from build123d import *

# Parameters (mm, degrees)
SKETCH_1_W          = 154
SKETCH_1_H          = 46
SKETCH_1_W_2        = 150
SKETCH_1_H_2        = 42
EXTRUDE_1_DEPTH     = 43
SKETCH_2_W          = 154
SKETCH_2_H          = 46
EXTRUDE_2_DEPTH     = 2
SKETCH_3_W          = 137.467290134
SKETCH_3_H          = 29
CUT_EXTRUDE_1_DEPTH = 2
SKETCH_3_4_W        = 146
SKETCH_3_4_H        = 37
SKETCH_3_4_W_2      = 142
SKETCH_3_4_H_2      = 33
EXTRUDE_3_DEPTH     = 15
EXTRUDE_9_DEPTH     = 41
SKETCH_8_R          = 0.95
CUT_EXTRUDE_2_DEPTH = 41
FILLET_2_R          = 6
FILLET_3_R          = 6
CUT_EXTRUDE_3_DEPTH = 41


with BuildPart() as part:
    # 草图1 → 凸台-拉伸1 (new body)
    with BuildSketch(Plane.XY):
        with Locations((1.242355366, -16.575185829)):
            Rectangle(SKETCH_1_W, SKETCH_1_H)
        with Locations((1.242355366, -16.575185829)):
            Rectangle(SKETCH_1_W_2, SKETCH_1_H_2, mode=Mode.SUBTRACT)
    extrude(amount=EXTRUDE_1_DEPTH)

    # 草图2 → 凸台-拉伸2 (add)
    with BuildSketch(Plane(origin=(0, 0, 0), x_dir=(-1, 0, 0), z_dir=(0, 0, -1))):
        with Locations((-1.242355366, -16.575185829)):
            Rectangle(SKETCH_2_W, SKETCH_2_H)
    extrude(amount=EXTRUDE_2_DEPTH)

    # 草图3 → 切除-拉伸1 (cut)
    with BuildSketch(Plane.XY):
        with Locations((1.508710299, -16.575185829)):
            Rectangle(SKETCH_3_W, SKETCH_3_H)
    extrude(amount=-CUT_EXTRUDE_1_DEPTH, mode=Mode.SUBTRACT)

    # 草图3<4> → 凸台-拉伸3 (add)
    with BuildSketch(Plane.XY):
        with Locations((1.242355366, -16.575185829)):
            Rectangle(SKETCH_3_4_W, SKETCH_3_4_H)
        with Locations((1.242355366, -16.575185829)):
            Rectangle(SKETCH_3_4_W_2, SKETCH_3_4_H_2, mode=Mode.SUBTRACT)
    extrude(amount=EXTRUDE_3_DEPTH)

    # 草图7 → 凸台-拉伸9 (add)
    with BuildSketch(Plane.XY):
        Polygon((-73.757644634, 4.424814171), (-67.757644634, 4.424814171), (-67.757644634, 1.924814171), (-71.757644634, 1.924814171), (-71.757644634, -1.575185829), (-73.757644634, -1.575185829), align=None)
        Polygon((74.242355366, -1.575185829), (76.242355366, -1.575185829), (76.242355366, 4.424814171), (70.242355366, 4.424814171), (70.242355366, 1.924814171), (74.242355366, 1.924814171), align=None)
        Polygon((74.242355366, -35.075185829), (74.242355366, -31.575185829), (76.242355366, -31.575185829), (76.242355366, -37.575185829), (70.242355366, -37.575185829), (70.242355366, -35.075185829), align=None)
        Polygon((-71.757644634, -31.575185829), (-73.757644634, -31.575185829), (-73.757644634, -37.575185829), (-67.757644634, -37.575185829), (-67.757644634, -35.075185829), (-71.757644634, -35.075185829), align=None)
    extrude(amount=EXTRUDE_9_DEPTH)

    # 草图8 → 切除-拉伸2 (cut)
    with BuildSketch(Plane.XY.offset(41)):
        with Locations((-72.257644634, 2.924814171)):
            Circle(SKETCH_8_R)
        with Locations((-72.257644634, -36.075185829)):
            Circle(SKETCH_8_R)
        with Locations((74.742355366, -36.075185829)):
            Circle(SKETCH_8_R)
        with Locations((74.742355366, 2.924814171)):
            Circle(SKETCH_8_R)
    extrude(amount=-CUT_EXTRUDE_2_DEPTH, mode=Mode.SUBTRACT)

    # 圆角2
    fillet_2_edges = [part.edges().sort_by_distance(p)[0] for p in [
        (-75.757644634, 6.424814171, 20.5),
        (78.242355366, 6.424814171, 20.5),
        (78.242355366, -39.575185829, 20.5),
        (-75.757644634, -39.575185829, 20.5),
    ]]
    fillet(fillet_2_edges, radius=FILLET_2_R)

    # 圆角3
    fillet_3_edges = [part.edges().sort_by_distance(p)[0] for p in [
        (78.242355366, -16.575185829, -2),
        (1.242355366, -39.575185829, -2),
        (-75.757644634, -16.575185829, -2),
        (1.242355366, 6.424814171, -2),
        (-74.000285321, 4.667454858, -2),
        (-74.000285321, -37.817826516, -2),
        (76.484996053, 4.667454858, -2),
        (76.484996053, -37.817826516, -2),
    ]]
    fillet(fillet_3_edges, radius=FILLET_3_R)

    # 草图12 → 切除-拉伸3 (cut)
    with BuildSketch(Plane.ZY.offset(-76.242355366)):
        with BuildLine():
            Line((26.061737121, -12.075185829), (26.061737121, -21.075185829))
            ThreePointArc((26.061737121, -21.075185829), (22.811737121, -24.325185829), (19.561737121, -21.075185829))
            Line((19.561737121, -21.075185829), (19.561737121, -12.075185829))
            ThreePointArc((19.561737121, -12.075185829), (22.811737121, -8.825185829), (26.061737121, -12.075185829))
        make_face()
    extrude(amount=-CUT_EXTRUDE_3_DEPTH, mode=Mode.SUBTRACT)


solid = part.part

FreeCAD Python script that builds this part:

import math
import FreeCAD as App
import Part
import Sketcher


def edges_at(feature, points):
    """Names of the edges that pass closest to the given points."""
    edges = feature.Shape.Edges
    near = lambda p: min(range(len(edges)), key=lambda i: edges[i].distToShape(Part.Vertex(*p))[0])
    return sorted({f"Edge{near(p) + 1}" for p in points})

doc = App.newDocument("Part")
params = doc.addObject("Spreadsheet::Sheet", "Params")
for row, (alias, value) in enumerate([
    ("sketch1_width", "154 mm"),
    ("sketch1_width2", "150 mm"),
    ("sketch1_height", "46 mm"),
    ("sketch1_height2", "42 mm"),
    ("pad1_length", "43 mm"),
    ("sketch2_width", "154 mm"),
    ("sketch2_height", "46 mm"),
    ("pad2_length", "2 mm"),
    ("sketch3_height", "29 mm"),
    ("pocket1_length", "2 mm"),
    ("sketch4_width", "146 mm"),
    ("sketch4_width2", "142 mm"),
    ("sketch4_height", "37 mm"),
    ("sketch4_height2", "33 mm"),
    ("pad3_length", "15 mm"),
    ("sketch5_width", "6 mm"),
    ("sketch5_width2", "2 mm"),
    ("sketch5_height", "3.5 mm"),
    ("pad4_length", "41 mm"),
    ("sketch6_diameter", "1.9 mm"),
    ("pocket2_length", "41 mm"),
    ("fillet_radius", "6 mm"),
    ("fillet2_radius", "6 mm"),
    ("sketch7_width", "9 mm"),
    ("sketch7_radius", "3.25 mm"),
    ("pocket3_length", "41 mm"),
], start=1):
    params.set(f"A{row}", alias)
    params.set(f"B{row}", "=" + value)
    params.setAlias(f"B{row}", alias)

body = doc.addObject("PartDesign::Body", "Body")

# Sketch on XY plane
sketch1 = body.newObject("Sketcher::SketchObject", "Sketch")
sketch1.AttachmentSupport = (doc.getObject("XY_Plane"), [""])
sketch1.MapMode = "FlatFace"
sketch1.addGeometry(Part.LineSegment(App.Vector(-76, 6, 0), App.Vector(-76, -40, 0)), False)
sketch1.addGeometry(Part.LineSegment(App.Vector(-76, -40, 0), App.Vector(78, -40, 0)), False)
sketch1.addGeometry(Part.LineSegment(App.Vector(78, -40, 0), App.Vector(78, 6, 0)), False)
sketch1.addGeometry(Part.LineSegment(App.Vector(78, 6, 0), App.Vector(-76, 6, 0)), False)
sketch1.addGeometry(Part.LineSegment(App.Vector(76, -38, 0), App.Vector(-74, -38, 0)), False)
sketch1.addGeometry(Part.LineSegment(App.Vector(-74, -38, 0), App.Vector(-74, 4, 0)), False)
sketch1.addGeometry(Part.LineSegment(App.Vector(-74, 4, 0), App.Vector(76, 4, 0)), False)
sketch1.addGeometry(Part.LineSegment(App.Vector(76, 4, 0), App.Vector(76, -38, 0)), False)
sketch1.addConstraint(Sketcher.Constraint("Coincident", 0, 2, 1, 1))
sketch1.addConstraint(Sketcher.Constraint("Coincident", 1, 2, 2, 1))
sketch1.addConstraint(Sketcher.Constraint("Coincident", 2, 2, 3, 1))
sketch1.addConstraint(Sketcher.Constraint("Coincident", 3, 2, 0, 1))
sketch1.addConstraint(Sketcher.Constraint("Coincident", 4, 2, 5, 1))
sketch1.addConstraint(Sketcher.Constraint("Coincident", 5, 2, 6, 1))
sketch1.addConstraint(Sketcher.Constraint("Coincident", 6, 2, 7, 1))
sketch1.addConstraint(Sketcher.Constraint("Coincident", 7, 2, 4, 1))
sketch1.addConstraint(Sketcher.Constraint("Vertical", 0))
sketch1.addConstraint(Sketcher.Constraint("Horizontal", 1))
sketch1.addConstraint(Sketcher.Constraint("Vertical", 2))
sketch1.addConstraint(Sketcher.Constraint("Horizontal", 3))
sketch1.addConstraint(Sketcher.Constraint("Horizontal", 4))
sketch1.addConstraint(Sketcher.Constraint("Vertical", 5))
sketch1.addConstraint(Sketcher.Constraint("Horizontal", 6))
sketch1.addConstraint(Sketcher.Constraint("Vertical", 7))
sketch1.addConstraint(Sketcher.Constraint("DistanceX", 1, 1, 1, 2, 154.0))
sketch1.addConstraint(Sketcher.Constraint("DistanceX", 4, 2, 4, 1, 150.0))
sketch1.addConstraint(Sketcher.Constraint("DistanceY", 0, 2, 0, 1, 46.0))
sketch1.addConstraint(Sketcher.Constraint("DistanceY", 5, 1, 5, 2, 42.0))
sketch1.addConstraint(Sketcher.Constraint("DistanceX", 0, 2, 4, 2, 2.0))
sketch1.addConstraint(Sketcher.Constraint("DistanceY", 0, 2, 4, 2, 2.0))
sketch1.addConstraint(Sketcher.Constraint("DistanceX", 0, 2, -1, 1, 75.757645))
sketch1.addConstraint(Sketcher.Constraint("DistanceY", 0, 2, -1, 1, 39.575186))
sketch1.setExpression("Constraints[16]", "Params.sketch1_width")
sketch1.setExpression("Constraints[17]", "Params.sketch1_width2")
sketch1.setExpression("Constraints[18]", "Params.sketch1_height")
sketch1.setExpression("Constraints[19]", "Params.sketch1_height2")
pad1 = body.newObject("PartDesign::Pad", "Pad")
pad1.Profile = sketch1
pad1.setExpression("Length", "Params.pad1_length")

# Sketch on XY plane
sketch2 = body.newObject("Sketcher::SketchObject", "Sketch001")
sketch2.AttachmentSupport = (doc.getObject("XY_Plane"), [""])
sketch2.MapMode = "FlatFace"
sketch2.addGeometry(Part.LineSegment(App.Vector(78, 6, 0), App.Vector(78, -40, 0)), False)
sketch2.addGeometry(Part.LineSegment(App.Vector(78, -40, 0), App.Vector(-76, -40, 0)), False)
sketch2.addGeometry(Part.LineSegment(App.Vector(-76, -40, 0), App.Vector(-76, 6, 0)), False)
sketch2.addGeometry(Part.LineSegment(App.Vector(-76, 6, 0), App.Vector(78, 6, 0)), False)
sketch2.addConstraint(Sketcher.Constraint("Coincident", 0, 2, 1, 1))
sketch2.addConstraint(Sketcher.Constraint("Coincident", 1, 2, 2, 1))
sketch2.addConstraint(Sketcher.Constraint("Coincident", 2, 2, 3, 1))
sketch2.addConstraint(Sketcher.Constraint("Coincident", 3, 2, 0, 1))
sketch2.addConstraint(Sketcher.Constraint("Vertical", 0))
sketch2.addConstraint(Sketcher.Constraint("Horizontal", 1))
sketch2.addConstraint(Sketcher.Constraint("Vertical", 2))
sketch2.addConstraint(Sketcher.Constraint("Horizontal", 3))
sketch2.addConstraint(Sketcher.Constraint("DistanceX", 1, 2, 1, 1, 154.0))
sketch2.addConstraint(Sketcher.Constraint("DistanceY", 0, 2, 0, 1, 46.0))
sketch2.addConstraint(Sketcher.Constraint("DistanceX", -1, 1, 0, 2, 78.242355))
sketch2.addConstraint(Sketcher.Constraint("DistanceY", 0, 2, -1, 1, 39.575186))
sketch2.setExpression("Constraints[8]", "Params.sketch2_width")
sketch2.setExpression("Constraints[9]", "Params.sketch2_height")
pad2 = body.newObject("PartDesign::Pad", "Pad001")
pad2.Profile = sketch2
pad2.setExpression("Length", "Params.pad2_length")
pad2.Reversed = True

# Sketch on XY plane
sketch3 = body.newObject("Sketcher::SketchObject", "Sketch002")
sketch3.AttachmentSupport = (doc.getObject("XY_Plane"), [""])
sketch3.MapMode = "FlatFace"
sketch3.addGeometry(Part.LineSegment(App.Vector(-67, -2, 0), App.Vector(-67, -31, 0)), False)
sketch3.addGeometry(Part.LineSegment(App.Vector(-67, -31, 0), App.Vector(70, -31, 0)), False)
sketch3.addGeometry(Part.LineSegment(App.Vector(70, -31, 0), App.Vector(70, -2, 0)), False)
sketch3.addGeometry(Part.LineSegment(App.Vector(70, -2, 0), App.Vector(-67, -2, 0)), False)
sketch3.addConstraint(Sketcher.Constraint("Coincident", 0, 2, 1, 1))
sketch3.addConstraint(Sketcher.Constraint("Coincident", 1, 2, 2, 1))
sketch3.addConstraint(Sketcher.Constraint("Coincident", 2, 2, 3, 1))
sketch3.addConstraint(Sketcher.Constraint("Coincident", 3, 2, 0, 1))
sketch3.addConstraint(Sketcher.Constraint("Vertical", 0))
sketch3.addConstraint(Sketcher.Constraint("Horizontal", 1))
sketch3.addConstraint(Sketcher.Constraint("Vertical", 2))
sketch3.addConstraint(Sketcher.Constraint("Horizontal", 3))
sketch3.addConstraint(Sketcher.Constraint("DistanceY", 0, 2, 0, 1, 29.0))
sketch3.addConstraint(Sketcher.Constraint("DistanceX", 1, 1, 1, 2, 137.46729))
sketch3.addConstraint(Sketcher.Constraint("DistanceX", 0, 2, -1, 1, 67.224935))
sketch3.addConstraint(Sketcher.Constraint("DistanceY", 0, 2, -1, 1, 31.075186))
sketch3.setExpression("Constraints[8]", "Params.sketch3_height")
pocket1 = body.newObject("PartDesign::Pocket", "Pocket")
pocket1.Profile = sketch3
pocket1.setExpression("Length", "Params.pocket1_length")

# Sketch on XY plane
sketch4 = body.newObject("Sketcher::SketchObject", "Sketch003")
sketch4.AttachmentSupport = (doc.getObject("XY_Plane"), [""])
sketch4.MapMode = "FlatFace"
sketch4.addGeometry(Part.LineSegment(App.Vector(-72, 2, 0), App.Vector(-72, -35, 0)), False)
sketch4.addGeometry(Part.LineSegment(App.Vector(-72, -35, 0), App.Vector(74, -35, 0)), False)
sketch4.addGeometry(Part.LineSegment(App.Vector(74, -35, 0), App.Vector(74, 2, 0)), False)
sketch4.addGeometry(Part.LineSegment(App.Vector(74, 2, 0), App.Vector(-72, 2, 0)), False)
sketch4.addGeometry(Part.LineSegment(App.Vector(72, -33, 0), App.Vector(-70, -33, 0)), False)
sketch4.addGeometry(Part.LineSegment(App.Vector(-70, -33, 0), App.Vector(-70, 0, 0)), False)
sketch4.addGeometry(Part.LineSegment(App.Vector(-70, 0, 0), App.Vector(72, 0, 0)), False)
sketch4.addGeometry(Part.LineSegment(App.Vector(72, 0, 0), App.Vector(72, -33, 0)), False)
sketch4.addConstraint(Sketcher.Constraint("Coincident", 0, 2, 1, 1))
sketch4.addConstraint(Sketcher.Constraint("Coincident", 1, 2, 2, 1))
sketch4.addConstraint(Sketcher.Constraint("Coincident", 2, 2, 3, 1))
sketch4.addConstraint(Sketcher.Constraint("Coincident", 3, 2, 0, 1))
sketch4.addConstraint(Sketcher.Constraint("Coincident", 4, 2, 5, 1))
sketch4.addConstraint(Sketcher.Constraint("Coincident", 5, 2, 6, 1))
sketch4.addConstraint(Sketcher.Constraint("Coincident", 6, 2, 7, 1))
sketch4.addConstraint(Sketcher.Constraint("Coincident", 7, 2, 4, 1))
sketch4.addConstraint(Sketcher.Constraint("Vertical", 0))
sketch4.addConstraint(Sketcher.Constraint("Horizontal", 1))
sketch4.addConstraint(Sketcher.Constraint("Vertical", 2))
sketch4.addConstraint(Sketcher.Constraint("Horizontal", 3))
sketch4.addConstraint(Sketcher.Constraint("Horizontal", 4))
sketch4.addConstraint(Sketcher.Constraint("Vertical", 5))
sketch4.addConstraint(Sketcher.Constraint("Horizontal", 6))
sketch4.addConstraint(Sketcher.Constraint("Vertical", 7))
sketch4.addConstraint(Sketcher.Constraint("DistanceX", 1, 1, 1, 2, 146.0))
sketch4.addConstraint(Sketcher.Constraint("DistanceX", 4, 2, 4, 1, 142.0))
sketch4.addConstraint(Sketcher.Constraint("DistanceY", 0, 2, 0, 1, 37.0))
sketch4.addConstraint(Sketcher.Constraint("DistanceY", 5, 1, 5, 2, 33.0))
sketch4.addConstraint(Sketcher.Constraint("DistanceX", 0, 2, 4, 2, 2.0))
sketch4.addConstraint(Sketcher.Constraint("DistanceY", 0, 2, 4, 2, 2.0))
sketch4.addConstraint(Sketcher.Constraint("DistanceX", 0, 2, -1, 1, 71.757645))
sketch4.addConstraint(Sketcher.Constraint("DistanceY", 0, 2, -1, 1, 35.075186))
sketch4.setExpression("Constraints[16]", "Params.sketch4_width")
sketch4.setExpression("Constraints[17]", "Params.sketch4_width2")
sketch4.setExpression("Constraints[18]", "Params.sketch4_height")
sketch4.setExpression("Constraints[19]", "Params.sketch4_height2")
pad3 = body.newObject("PartDesign::Pad", "Pad002")
pad3.Profile = sketch4
pad3.setExpression("Length", "Params.pad3_length")

# Sketch on XY plane
sketch5 = body.newObject("Sketcher::SketchObject", "Sketch004")
sketch5.AttachmentSupport = (doc.getObject("XY_Plane"), [""])
sketch5.MapMode = "FlatFace"
sketch5.addGeometry(Part.LineSegment(App.Vector(-67.8, 4.4, 0), App.Vector(-73.8, 4.4, 0)), False)
sketch5.addGeometry(Part.LineSegment(App.Vector(-73.8, 4.4, 0), App.Vector(-73.8, -1.6, 0)), False)
sketch5.addGeometry(Part.LineSegment(App.Vector(-73.8, -1.6, 0), App.Vector(-71.8, -1.6, 0)), False)
sketch5.addGeometry(Part.LineSegment(App.Vector(-71.8, -1.6, 0), App.Vector(-71.8, 1.9, 0)), False)
sketch5.addGeometry(Part.LineSegment(App.Vector(-71.8, 1.9, 0), App.Vector(-67.8, 1.9, 0)), False)
sketch5.addGeometry(Part.LineSegment(App.Vector(-67.8, 1.9, 0), App.Vector(-67.8, 4.4, 0)), False)
sketch5.addGeometry(Part.LineSegment(App.Vector(74.2, -1.6, 0), App.Vector(76.2, -1.6, 0)), False)
sketch5.addGeometry(Part.LineSegment(App.Vector(76.2, -1.6, 0), App.Vector(76.2, 4.4, 0)), False)
sketch5.addGeometry(Part.LineSegment(App.Vector(76.2, 4.4, 0), App.Vector(70.2, 4.4, 0)), False)
sketch5.addGeometry(Part.LineSegment(App.Vector(70.2, 4.4, 0), App.Vector(70.2, 1.9, 0)), False)
sketch5.addGeometry(Part.LineSegment(App.Vector(70.2, 1.9, 0), App.Vector(74.2, 1.9, 0)), False)
sketch5.addGeometry(Part.LineSegment(App.Vector(74.2, 1.9, 0), App.Vector(74.2, -1.6, 0)), False)
sketch5.addGeometry(Part.LineSegment(App.Vector(74.2, -31.6, 0), App.Vector(74.2, -35.1, 0)), False)
sketch5.addGeometry(Part.LineSegment(App.Vector(74.2, -35.1, 0), App.Vector(70.2, -35.1, 0)), False)
sketch5.addGeometry(Part.LineSegment(App.Vector(70.2, -35.1, 0), App.Vector(70.2, -37.6, 0)), False)
sketch5.addGeometry(Part.LineSegment(App.Vector(70.2, -37.6, 0), App.Vector(76.2, -37.6, 0)), False)
sketch5.addGeometry(Part.LineSegment(App.Vector(76.2, -37.6, 0), App.Vector(76.2, -31.6, 0)), False)
sketch5.addGeometry(Part.LineSegment(App.Vector(76.2, -31.6, 0), App.Vector(74.2, -31.6, 0)), False)
sketch5.addGeometry(Part.LineSegment(App.Vector(-71.8, -31.6, 0), App.Vector(-73.8, -31.6, 0)), False)
sketch5.addGeometry(Part.LineSegment(App.Vector(-73.8, -31.6, 0), App.Vector(-73.8, -37.6, 0)), False)
sketch5.addGeometry(Part.LineSegment(App.Vector(-73.8, -37.6, 0), App.Vector(-67.8, -37.6, 0)), False)
sketch5.addGeometry(Part.LineSegment(App.Vector(-67.8, -37.6, 0), App.Vector(-67.8, -35.1, 0)), False)
sketch5.addGeometry(Part.LineSegment(App.Vector(-67.8, -35.1, 0), App.Vector(-71.8, -35.1, 0)), False)
sketch5.addGeometry(Part.LineSegment(App.Vector(-71.8, -35.1, 0), App.Vector(-71.8, -31.6, 0)), False)
sketch5.addConstraint(Sketcher.Constraint("Coincident", 0, 2, 1, 1))
sketch5.addConstraint(Sketcher.Constraint("Coincident", 1, 2, 2, 1))
sketch5.addConstraint(Sketcher.Constraint("Coincident", 2, 2, 3, 1))
sketch5.addConstraint(Sketcher.Constraint("Coincident", 3, 2, 4, 1))
sketch5.addConstraint(Sketcher.Constraint("Coincident", 4, 2, 5, 1))
sketch5.addConstraint(Sketcher.Constraint("Coincident", 5, 2, 0, 1))
sketch5.addConstraint(Sketcher.Constraint("Coincident", 6, 2, 7, 1))
sketch5.addConstraint(Sketcher.Constraint("Coincident", 7, 2, 8, 1))
sketch5.addConstraint(Sketcher.Constraint("Coincident", 8, 2, 9, 1))
sketch5.addConstraint(Sketcher.Constraint("Coincident", 9, 2, 10, 1))
sketch5.addConstraint(Sketcher.Constraint("Coincident", 10, 2, 11, 1))
sketch5.addConstraint(Sketcher.Constraint("Coincident", 11, 2, 6, 1))
sketch5.addConstraint(Sketcher.Constraint("Coincident", 12, 2, 13, 1))
sketch5.addConstraint(Sketcher.Constraint("Coincident", 13, 2, 14, 1))
sketch5.addConstraint(Sketcher.Constraint("Coincident", 14, 2, 15, 1))
sketch5.addConstraint(Sketcher.Constraint("Coincident", 15, 2, 16, 1))
sketch5.addConstraint(Sketcher.Constraint("Coincident", 16, 2, 17, 1))
sketch5.addConstraint(Sketcher.Constraint("Coincident", 17, 2, 12, 1))
sketch5.addConstraint(Sketcher.Constraint("Coincident", 18, 2, 19, 1))
sketch5.addConstraint(Sketcher.Constraint("Coincident", 19, 2, 20, 1))
sketch5.addConstraint(Sketcher.Constraint("Coincident", 20, 2, 21, 1))
sketch5.addConstraint(Sketcher.Constraint("Coincident", 21, 2, 22, 1))
sketch5.addConstraint(Sketcher.Constraint("Coincident", 22, 2, 23, 1))
sketch5.addConstraint(Sketcher.Constraint("Coincident", 23, 2, 18, 1))
sketch5.addConstraint(Sketcher.Constraint("Horizontal", 0))
sketch5.addConstraint(Sketcher.Constraint("Vertical", 1))
sketch5.addConstraint(Sketcher.Constraint("Horizontal", 2))
sketch5.addConstraint(Sketcher.Constraint("Vertical", 3))
sketch5.addConstraint(Sketcher.Constraint("Horizontal", 4))
sketch5.addConstraint(Sketcher.Constraint("Vertical", 5))
sketch5.addConstraint(Sketcher.Constraint("Horizontal", 6))
sketch5.addConstraint(Sketcher.Constraint("Vertical", 7))
sketch5.addConstraint(Sketcher.Constraint("Horizontal", 8))
sketch5.addConstraint(Sketcher.Constraint("Vertical", 9))
sketch5.addConstraint(Sketcher.Constraint("Horizontal", 10))
sketch5.addConstraint(Sketcher.Constraint("Vertical", 11))
sketch5.addConstraint(Sketcher.Constraint("Vertical", 12))
sketch5.addConstraint(Sketcher.Constraint("Horizontal", 13))
sketch5.addConstraint(Sketcher.Constraint("Vertical", 14))
sketch5.addConstraint(Sketcher.Constraint("Horizontal", 15))
sketch5.addConstraint(Sketcher.Constraint("Vertical", 16))
sketch5.addConstraint(Sketcher.Constraint("Horizontal", 17))
sketch5.addConstraint(Sketcher.Constraint("Horizontal", 18))
sketch5.addConstraint(Sketcher.Constraint("Vertical", 19))
sketch5.addConstraint(Sketcher.Constraint("Horizontal", 20))
sketch5.addConstraint(Sketcher.Constraint("Vertical", 21))
sketch5.addConstraint(Sketcher.Constraint("Horizontal", 22))
sketch5.addConstraint(Sketcher.Constraint("Vertical", 23))
sketch5.addConstraint(Sketcher.Constraint("Horizontal", 2, 2, 6, 2))
sketch5.addConstraint(Sketcher.Constraint("Horizontal", 5, 2, 7, 2))
sketch5.addConstraint(Sketcher.Constraint("Horizontal", 4, 2, 9, 2))
sketch5.addConstraint(Sketcher.Constraint("Horizontal", 17, 2, 18, 2))
sketch5.addConstraint(Sketcher.Constraint("Horizontal", 15, 2, 19, 2))
sketch5.addConstraint(Sketcher.Constraint("Horizontal", 13, 2, 21, 2))
sketch5.addConstraint(Sketcher.Constraint("Vertical", 11, 2, 12, 2))
sketch5.addConstraint(Sketcher.Constraint("Vertical", 9, 2, 13, 2))
sketch5.addConstraint(Sketcher.Constraint("Vertical", 7, 2, 15, 2))
sketch5.addConstraint(Sketcher.Constraint("Vertical", 1, 2, 18, 2))
sketch5.addConstraint(Sketcher.Constraint("Vertical", 5, 2, 20, 2))
sketch5.addConstraint(Sketcher.Constraint("Vertical", 3, 2, 22, 2))
sketch5.addConstraint(Sketcher.Constraint("Equal", 2, 6))
sketch5.addConstraint(Sketcher.Constraint("Equal", 0, 8))
sketch5.addConstraint(Sketcher.Constraint("Equal", 20, 1))
sketch5.addConstraint(Sketcher.Constraint("Equal", 11, 12))
sketch5.addConstraint(Sketcher.Constraint("Equal", 9, 14))
sketch5.addConstraint(Sketcher.Constraint("DistanceX", 0, 2, 0, 1, 6.0))
sketch5.addConstraint(Sketcher.Constraint("DistanceX", 2, 1, 2, 2, 2.0))
sketch5.addConstraint(Sketcher.Constraint("DistanceY", 3, 1, 3, 2, 3.5))
sketch5.addConstraint(Sketcher.Constraint("DistanceX", 4, 2, 6, 2, 144.0))
sketch5.addConstraint(Sketcher.Constraint("DistanceY", 12, 2, 10, 2, 37.0))
sketch5.addConstraint(Sketcher.Constraint("DistanceX", 0, 2, -1, 1, 73.757645))
sketch5.addConstraint(Sketcher.Constraint("DistanceY", -1, 1, 0, 2, 4.424814))
sketch5.setExpression("Constraints[65]", "Params.sketch5_width")
sketch5.setExpression("Constraints[66]", "Params.sketch5_width2")
sketch5.setExpression("Constraints[67]", "Params.sketch5_height")
pad4 = body.newObject("PartDesign::Pad", "Pad003")
pad4.Profile = sketch5
pad4.setExpression("Length", "Params.pad4_length")

# Sketch on XY plane
sketch6 = body.newObject("Sketcher::SketchObject", "Sketch005")
sketch6.AttachmentSupport = (doc.getObject("XY_Plane"), [""])
sketch6.MapMode = "FlatFace"
sketch6.AttachmentOffset = App.Placement(App.Vector(0, 0, 41), App.Rotation())
sketch6.addGeometry(Part.Circle(App.Vector(-72.3, 2.9, 0), App.Vector(0, 0, 1), 0.9), False)
sketch6.addGeometry(Part.Circle(App.Vector(-72.3, -36.1, 0), App.Vector(0, 0, 1), 0.9), False)
sketch6.addGeometry(Part.Circle(App.Vector(74.7, -36.1, 0), App.Vector(0, 0, 1), 0.9), False)
sketch6.addGeometry(Part.Circle(App.Vector(74.7, 2.9, 0), App.Vector(0, 0, 1), 0.9), False)
sketch6.addConstraint(Sketcher.Constraint("Equal", 0, 1))
sketch6.addConstraint(Sketcher.Constraint("Equal", 1, 2))
sketch6.addConstraint(Sketcher.Constraint("Equal", 2, 3))
sketch6.addConstraint(Sketcher.Constraint("Horizontal", 1, 3, 2, 3))
sketch6.addConstraint(Sketcher.Constraint("Horizontal", 0, 3, 3, 3))
sketch6.addConstraint(Sketcher.Constraint("Vertical", 0, 3, 1, 3))
sketch6.addConstraint(Sketcher.Constraint("Vertical", 2, 3, 3, 3))
sketch6.addConstraint(Sketcher.Constraint("Diameter", 0, 1.9))
sketch6.addConstraint(Sketcher.Constraint("DistanceY", 1, 3, 0, 3, 39.0))
sketch6.addConstraint(Sketcher.Constraint("DistanceX", 1, 3, 2, 3, 147.0))
sketch6.addConstraint(Sketcher.Constraint("DistanceX", 0, 3, -1, 1, 72.257645))
sketch6.addConstraint(Sketcher.Constraint("DistanceY", -1, 1, 0, 3, 2.924814))
sketch6.setExpression("Constraints[7]", "Params.sketch6_diameter")
pocket2 = body.newObject("PartDesign::Pocket", "Pocket001")
pocket2.Profile = sketch6
pocket2.setExpression("Length", "Params.pocket2_length")
doc.recompute()

fillet = body.newObject("PartDesign::Fillet", "Fillet")
fillet.Base = (pocket2, edges_at(pocket2, [
    (-75.758, 6.425, 20.5),
    (78.242, 6.425, 20.5),
    (78.242, -39.575, 20.5),
    (-75.758, -39.575, 20.5),
]))
fillet.setExpression("Radius", "Params.fillet_radius")
doc.recompute()

fillet2 = body.newObject("PartDesign::Fillet", "Fillet001")
fillet2.Base = (fillet, edges_at(fillet, [
    (78.242, -16.575, -2),
    (1.242, -39.575, -2),
    (-75.758, -16.575, -2),
    (1.242, 6.425, -2),
    (-74, 4.667, -2),
    (-74, -37.818, -2),
    (76.485, 4.667, -2),
    (76.485, -37.818, -2),
]))
fillet2.setExpression("Radius", "Params.fillet2_radius")

# Sketch on YZ plane
sketch7 = body.newObject("Sketcher::SketchObject", "Sketch006")
sketch7.AttachmentSupport = (doc.getObject("YZ_Plane"), [""])
sketch7.MapMode = "FlatFace"
sketch7.AttachmentOffset = App.Placement(App.Vector(0, 0, 76.242355), App.Rotation())
sketch7.addGeometry(Part.LineSegment(App.Vector(-21.1, 26.1, 0), App.Vector(-12.1, 26.1, 0)), False)
sketch7.addGeometry(Part.ArcOfCircle(Part.Circle(App.Vector(-12.1, 22.8, 0), App.Vector(0, 0, 1), 3.2), math.radians(-90), math.radians(90)), False)
sketch7.addGeometry(Part.LineSegment(App.Vector(-12.1, 19.6, 0), App.Vector(-21.1, 19.6, 0)), False)
sketch7.addGeometry(Part.ArcOfCircle(Part.Circle(App.Vector(-21.1, 22.8, 0), App.Vector(0, 0, 1), 3.2), math.radians(90), math.radians(270)), False)
sketch7.addConstraint(Sketcher.Constraint("Tangent", 0, 2, 1, 2))
sketch7.addConstraint(Sketcher.Constraint("Tangent", 1, 1, 2, 1))
sketch7.addConstraint(Sketcher.Constraint("Tangent", 2, 2, 3, 2))
sketch7.addConstraint(Sketcher.Constraint("Tangent", 3, 1, 0, 1))
sketch7.addConstraint(Sketcher.Constraint("Horizontal", 0))
sketch7.addConstraint(Sketcher.Constraint("Horizontal", 2))
sketch7.addConstraint(Sketcher.Constraint("DistanceX", 0, 1, 0, 2, 9.0))
sketch7.addConstraint(Sketcher.Constraint("Radius", 1, 3.25))
sketch7.addConstraint(Sketcher.Constraint("DistanceX", 1, 3, -1, 1, 12.075186))
sketch7.addConstraint(Sketcher.Constraint("DistanceY", -1, 1, 1, 3, 22.811737))
sketch7.setExpression("Constraints[6]", "Params.sketch7_width")
sketch7.setExpression("Constraints[7]", "Params.sketch7_radius")
pocket3 = body.newObject("PartDesign::Pocket", "Pocket002")
pocket3.Profile = sketch7
pocket3.setExpression("Length", "Params.pocket3_length")
pocket3.Reversed = True

doc.recompute()
